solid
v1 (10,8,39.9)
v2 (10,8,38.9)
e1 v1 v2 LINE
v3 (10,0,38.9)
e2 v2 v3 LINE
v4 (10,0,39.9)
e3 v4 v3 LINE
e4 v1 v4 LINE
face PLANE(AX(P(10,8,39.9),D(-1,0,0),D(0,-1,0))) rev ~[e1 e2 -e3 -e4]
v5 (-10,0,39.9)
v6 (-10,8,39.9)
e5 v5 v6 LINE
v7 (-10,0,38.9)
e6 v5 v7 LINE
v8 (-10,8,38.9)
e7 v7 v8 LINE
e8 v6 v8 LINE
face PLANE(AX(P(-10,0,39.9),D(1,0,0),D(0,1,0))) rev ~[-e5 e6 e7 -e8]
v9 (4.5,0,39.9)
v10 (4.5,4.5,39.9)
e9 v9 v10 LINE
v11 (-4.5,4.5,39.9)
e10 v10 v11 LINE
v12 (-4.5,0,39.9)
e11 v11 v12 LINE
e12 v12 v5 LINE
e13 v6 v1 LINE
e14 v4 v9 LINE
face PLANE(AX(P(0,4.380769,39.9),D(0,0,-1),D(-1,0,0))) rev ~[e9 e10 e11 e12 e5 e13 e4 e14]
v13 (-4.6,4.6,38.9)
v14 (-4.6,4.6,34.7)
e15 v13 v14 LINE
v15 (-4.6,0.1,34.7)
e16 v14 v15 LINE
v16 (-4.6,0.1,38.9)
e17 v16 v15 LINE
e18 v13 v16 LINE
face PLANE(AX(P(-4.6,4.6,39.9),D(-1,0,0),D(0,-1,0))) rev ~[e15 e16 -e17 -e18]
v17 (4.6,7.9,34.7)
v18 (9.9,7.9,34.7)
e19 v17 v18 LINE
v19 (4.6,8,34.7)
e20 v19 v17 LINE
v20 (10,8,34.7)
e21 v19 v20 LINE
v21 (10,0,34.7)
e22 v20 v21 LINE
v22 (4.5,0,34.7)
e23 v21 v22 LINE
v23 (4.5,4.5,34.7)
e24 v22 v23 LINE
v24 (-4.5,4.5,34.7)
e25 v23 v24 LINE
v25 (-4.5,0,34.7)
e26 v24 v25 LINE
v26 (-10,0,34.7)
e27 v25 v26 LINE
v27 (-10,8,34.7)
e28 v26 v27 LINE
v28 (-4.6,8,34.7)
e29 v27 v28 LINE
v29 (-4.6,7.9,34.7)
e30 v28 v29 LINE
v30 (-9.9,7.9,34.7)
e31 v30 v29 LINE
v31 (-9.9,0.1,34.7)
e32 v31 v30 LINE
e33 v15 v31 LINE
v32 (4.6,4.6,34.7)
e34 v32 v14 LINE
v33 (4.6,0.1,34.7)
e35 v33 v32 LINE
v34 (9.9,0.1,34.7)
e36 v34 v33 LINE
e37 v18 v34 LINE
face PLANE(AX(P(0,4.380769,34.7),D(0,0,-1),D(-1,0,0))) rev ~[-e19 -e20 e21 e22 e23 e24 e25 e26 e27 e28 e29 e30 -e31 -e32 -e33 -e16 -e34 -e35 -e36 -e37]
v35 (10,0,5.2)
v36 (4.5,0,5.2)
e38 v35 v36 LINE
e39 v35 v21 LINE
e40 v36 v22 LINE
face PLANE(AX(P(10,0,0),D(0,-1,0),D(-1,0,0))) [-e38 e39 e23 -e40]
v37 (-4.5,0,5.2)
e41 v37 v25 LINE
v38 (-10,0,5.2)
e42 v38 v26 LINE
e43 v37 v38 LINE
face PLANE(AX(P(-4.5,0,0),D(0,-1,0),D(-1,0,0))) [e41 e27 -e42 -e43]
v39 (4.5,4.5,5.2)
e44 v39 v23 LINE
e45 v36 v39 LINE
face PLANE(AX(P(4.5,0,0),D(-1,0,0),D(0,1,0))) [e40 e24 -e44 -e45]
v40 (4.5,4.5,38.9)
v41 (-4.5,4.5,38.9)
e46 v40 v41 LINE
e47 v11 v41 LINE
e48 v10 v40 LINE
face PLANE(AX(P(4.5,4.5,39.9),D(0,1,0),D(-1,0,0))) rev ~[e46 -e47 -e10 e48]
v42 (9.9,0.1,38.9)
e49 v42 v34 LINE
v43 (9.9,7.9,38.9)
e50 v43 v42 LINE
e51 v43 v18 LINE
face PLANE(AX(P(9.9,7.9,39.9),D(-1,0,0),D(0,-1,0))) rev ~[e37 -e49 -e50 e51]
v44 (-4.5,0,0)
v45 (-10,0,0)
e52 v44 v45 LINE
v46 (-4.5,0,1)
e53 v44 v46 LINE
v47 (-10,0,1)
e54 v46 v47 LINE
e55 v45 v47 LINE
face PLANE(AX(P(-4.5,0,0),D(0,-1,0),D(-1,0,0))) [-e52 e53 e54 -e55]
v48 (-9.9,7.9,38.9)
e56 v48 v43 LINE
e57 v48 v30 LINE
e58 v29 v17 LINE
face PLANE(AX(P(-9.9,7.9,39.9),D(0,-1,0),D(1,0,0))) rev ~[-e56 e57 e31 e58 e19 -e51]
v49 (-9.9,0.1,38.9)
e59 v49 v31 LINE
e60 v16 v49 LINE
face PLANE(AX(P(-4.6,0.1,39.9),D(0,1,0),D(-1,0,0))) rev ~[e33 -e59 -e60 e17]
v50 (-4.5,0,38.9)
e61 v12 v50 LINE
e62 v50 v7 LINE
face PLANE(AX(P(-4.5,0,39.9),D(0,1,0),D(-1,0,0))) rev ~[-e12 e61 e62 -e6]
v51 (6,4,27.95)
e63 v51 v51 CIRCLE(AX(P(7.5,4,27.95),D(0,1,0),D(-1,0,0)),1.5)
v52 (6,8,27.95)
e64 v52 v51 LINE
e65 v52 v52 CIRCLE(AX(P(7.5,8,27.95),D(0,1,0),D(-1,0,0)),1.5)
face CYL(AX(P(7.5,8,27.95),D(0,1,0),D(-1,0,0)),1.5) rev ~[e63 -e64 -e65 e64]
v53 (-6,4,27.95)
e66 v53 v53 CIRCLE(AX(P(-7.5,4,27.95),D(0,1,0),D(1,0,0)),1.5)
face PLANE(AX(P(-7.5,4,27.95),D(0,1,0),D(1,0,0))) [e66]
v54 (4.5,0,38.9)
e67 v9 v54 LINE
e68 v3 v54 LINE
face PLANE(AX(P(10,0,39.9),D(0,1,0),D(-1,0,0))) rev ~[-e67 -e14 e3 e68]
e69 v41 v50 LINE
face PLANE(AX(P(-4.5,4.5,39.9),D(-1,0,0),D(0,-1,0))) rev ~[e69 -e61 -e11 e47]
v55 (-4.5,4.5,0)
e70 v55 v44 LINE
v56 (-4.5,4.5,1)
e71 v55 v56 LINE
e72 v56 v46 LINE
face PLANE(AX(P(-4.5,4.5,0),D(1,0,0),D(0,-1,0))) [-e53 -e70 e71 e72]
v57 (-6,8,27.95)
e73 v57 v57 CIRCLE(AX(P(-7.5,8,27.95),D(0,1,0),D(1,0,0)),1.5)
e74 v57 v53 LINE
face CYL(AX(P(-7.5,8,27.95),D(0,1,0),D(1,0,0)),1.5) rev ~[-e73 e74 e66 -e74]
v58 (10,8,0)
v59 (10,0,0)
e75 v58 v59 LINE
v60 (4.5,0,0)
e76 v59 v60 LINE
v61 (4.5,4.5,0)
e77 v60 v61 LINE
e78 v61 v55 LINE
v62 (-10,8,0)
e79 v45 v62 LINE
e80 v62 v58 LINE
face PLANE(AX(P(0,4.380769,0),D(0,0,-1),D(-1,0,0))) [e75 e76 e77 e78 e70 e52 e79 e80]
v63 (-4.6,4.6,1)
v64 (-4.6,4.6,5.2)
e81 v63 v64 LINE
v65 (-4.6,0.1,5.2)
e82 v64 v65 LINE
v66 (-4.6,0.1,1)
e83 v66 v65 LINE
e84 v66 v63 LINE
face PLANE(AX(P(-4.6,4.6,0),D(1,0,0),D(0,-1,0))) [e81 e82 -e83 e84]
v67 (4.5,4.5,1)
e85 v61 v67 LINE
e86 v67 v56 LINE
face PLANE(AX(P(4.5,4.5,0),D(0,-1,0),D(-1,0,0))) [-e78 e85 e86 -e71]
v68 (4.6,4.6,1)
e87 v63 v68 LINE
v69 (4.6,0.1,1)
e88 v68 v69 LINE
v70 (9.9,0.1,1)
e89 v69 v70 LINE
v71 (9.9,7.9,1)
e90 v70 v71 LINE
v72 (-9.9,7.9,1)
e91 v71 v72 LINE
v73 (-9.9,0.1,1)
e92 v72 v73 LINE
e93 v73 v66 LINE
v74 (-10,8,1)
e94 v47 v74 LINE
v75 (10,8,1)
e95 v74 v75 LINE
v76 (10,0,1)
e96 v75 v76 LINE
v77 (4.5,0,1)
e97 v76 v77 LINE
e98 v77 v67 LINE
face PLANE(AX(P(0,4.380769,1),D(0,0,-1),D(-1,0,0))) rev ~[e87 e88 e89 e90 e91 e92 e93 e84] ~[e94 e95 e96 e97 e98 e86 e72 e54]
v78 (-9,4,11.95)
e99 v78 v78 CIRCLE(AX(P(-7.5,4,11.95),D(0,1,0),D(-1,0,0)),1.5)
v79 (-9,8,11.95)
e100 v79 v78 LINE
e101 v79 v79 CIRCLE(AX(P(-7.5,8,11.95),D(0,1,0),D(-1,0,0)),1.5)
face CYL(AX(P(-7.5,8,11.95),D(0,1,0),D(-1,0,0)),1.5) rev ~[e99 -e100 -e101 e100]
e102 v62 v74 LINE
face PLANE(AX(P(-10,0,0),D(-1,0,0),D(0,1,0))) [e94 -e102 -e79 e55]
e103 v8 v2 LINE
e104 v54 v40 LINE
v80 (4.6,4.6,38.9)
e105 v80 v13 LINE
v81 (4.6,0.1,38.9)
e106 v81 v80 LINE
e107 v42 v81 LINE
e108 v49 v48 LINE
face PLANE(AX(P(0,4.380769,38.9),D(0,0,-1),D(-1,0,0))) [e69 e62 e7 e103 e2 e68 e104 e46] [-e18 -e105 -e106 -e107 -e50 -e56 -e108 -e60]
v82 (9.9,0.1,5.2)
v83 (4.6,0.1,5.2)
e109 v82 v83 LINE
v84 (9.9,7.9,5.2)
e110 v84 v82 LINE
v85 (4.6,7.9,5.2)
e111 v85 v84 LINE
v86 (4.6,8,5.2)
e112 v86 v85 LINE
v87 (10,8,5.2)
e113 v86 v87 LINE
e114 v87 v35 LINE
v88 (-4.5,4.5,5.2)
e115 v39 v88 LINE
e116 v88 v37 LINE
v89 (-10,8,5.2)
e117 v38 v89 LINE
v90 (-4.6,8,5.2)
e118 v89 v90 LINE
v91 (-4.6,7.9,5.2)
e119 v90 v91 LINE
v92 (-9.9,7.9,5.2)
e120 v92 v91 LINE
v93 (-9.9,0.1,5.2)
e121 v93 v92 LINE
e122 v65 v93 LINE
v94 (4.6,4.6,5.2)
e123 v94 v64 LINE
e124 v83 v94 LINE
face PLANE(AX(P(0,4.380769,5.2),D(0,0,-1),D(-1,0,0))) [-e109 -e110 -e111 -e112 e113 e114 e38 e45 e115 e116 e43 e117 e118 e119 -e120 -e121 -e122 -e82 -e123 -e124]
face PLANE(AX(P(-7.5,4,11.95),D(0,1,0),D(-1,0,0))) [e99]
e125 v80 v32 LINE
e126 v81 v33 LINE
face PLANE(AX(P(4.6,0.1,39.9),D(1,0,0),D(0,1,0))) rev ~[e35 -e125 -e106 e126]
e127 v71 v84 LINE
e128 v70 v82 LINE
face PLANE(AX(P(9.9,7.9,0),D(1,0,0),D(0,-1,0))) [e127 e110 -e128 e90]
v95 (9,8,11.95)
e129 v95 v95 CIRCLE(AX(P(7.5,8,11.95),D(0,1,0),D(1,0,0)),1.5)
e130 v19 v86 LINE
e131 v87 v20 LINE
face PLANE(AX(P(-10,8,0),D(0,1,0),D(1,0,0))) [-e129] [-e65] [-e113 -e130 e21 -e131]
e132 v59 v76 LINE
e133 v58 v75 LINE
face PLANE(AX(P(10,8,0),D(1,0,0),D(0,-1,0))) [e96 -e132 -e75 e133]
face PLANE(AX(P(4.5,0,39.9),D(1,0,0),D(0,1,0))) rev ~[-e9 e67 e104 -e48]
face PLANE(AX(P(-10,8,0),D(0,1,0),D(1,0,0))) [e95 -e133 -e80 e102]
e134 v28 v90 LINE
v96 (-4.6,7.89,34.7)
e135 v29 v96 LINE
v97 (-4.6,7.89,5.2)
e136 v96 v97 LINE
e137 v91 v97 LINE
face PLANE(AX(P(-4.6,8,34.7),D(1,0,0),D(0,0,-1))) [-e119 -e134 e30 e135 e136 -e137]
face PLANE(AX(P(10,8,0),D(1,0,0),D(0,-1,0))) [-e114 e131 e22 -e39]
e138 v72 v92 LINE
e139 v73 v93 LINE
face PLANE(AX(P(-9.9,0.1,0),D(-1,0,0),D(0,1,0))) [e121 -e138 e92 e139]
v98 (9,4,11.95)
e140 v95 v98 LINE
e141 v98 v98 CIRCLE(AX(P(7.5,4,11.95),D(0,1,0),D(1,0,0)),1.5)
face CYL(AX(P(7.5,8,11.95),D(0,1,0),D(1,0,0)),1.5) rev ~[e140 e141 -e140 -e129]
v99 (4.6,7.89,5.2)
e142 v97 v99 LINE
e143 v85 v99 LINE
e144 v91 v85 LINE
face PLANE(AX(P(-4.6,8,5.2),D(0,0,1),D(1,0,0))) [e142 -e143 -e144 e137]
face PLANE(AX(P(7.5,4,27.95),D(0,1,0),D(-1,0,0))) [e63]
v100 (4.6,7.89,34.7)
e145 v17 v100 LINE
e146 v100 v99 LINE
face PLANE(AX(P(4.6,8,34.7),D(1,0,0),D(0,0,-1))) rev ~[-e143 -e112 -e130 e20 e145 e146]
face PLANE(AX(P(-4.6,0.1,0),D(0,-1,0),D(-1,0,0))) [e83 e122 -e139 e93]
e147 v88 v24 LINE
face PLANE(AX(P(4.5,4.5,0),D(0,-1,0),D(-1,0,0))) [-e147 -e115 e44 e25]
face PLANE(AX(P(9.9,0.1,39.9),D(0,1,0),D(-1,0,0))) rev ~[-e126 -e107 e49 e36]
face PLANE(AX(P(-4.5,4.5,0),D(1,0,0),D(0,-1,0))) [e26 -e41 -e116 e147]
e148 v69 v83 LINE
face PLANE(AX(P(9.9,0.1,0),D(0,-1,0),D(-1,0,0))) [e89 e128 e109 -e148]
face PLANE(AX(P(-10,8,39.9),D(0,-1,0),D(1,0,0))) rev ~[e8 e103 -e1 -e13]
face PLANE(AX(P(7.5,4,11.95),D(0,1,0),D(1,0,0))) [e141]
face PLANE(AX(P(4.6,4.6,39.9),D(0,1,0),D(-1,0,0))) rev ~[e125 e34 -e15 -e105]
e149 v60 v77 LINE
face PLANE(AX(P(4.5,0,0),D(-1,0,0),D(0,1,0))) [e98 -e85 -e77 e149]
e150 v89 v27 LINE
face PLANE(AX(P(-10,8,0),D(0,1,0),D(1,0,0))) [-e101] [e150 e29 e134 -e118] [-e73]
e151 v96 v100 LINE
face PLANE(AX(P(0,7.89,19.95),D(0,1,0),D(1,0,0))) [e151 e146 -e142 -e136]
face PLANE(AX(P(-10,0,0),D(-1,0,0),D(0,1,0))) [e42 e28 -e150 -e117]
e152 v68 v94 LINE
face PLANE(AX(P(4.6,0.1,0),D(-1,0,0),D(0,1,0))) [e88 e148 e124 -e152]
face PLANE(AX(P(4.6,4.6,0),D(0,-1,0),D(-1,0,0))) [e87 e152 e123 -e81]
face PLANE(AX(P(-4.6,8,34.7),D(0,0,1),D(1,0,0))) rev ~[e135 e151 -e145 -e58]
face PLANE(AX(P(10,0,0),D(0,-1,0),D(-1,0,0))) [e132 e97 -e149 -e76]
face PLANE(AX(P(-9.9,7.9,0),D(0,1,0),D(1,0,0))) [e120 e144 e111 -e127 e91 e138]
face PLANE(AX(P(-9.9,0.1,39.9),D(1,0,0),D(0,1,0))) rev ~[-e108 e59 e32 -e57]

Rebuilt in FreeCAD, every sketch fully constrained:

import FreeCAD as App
import Part
import Sketcher

V = App.Vector


def add_polygon(sketch, points):
    """Adds a closed chain of lines whose ends are joined by coincident constraints."""
    first, n = sketch.GeometryCount, len(points)
    for a, b in zip(points, points[1:] + points[:1]):
        sketch.addGeometry(Part.LineSegment(App.Vector(*a, 0), App.Vector(*b, 0)), False)
    for i in range(n):
        sketch.addConstraint(Sketcher.Constraint("Coincident", first + i, 2, first + (i + 1) % n, 1))

doc = App.newDocument("Part")
body = doc.addObject("PartDesign::Body", "Body")

sketch1 = body.newObject("Sketcher::SketchObject", "Sketch")
sketch1.AttachmentSupport = (doc.getObject("XY_Plane"), [""])
sketch1.MapMode = "FlatFace"
add_polygon(sketch1, [(-4.5, 4.5), (4.5, 4.5), (4.5, 0), (10, 0), (10, 8), (-10, 8), (-10, 0), (-4.5, 0)])
sketch1.addConstraint([
    Sketcher.Constraint("Horizontal", 0),
    Sketcher.Constraint("Vertical", 1),
    Sketcher.Constraint("Horizontal", 2),
    Sketcher.Constraint("Vertical", 3),
    Sketcher.Constraint("Horizontal", 4),
    Sketcher.Constraint("Vertical", 5),
    Sketcher.Constraint("Horizontal", 6),
    Sketcher.Constraint("Vertical", 7),
    Sketcher.Constraint("Symmetric", 2, 2, 5, 2, -1, 1),
    Sketcher.Constraint("Symmetric", 1, 2, 6, 2, -2),
    Sketcher.Constraint("DistanceX", 0, 1, 0, 2, 9.0),
    Sketcher.Constraint("DistanceX", 4, 2, 4, 1, 20.0),
    Sketcher.Constraint("DistanceY", 3, 1, 3, 2, 8.0),
    Sketcher.Constraint("DistanceY", 1, 2, 1, 1, 4.5),
])
pad1 = body.newObject("PartDesign::Pad", "Pad")
pad1.Profile = sketch1
pad1.Length = 39.9

sketch2 = body.newObject("Sketcher::SketchObject", "Sketch001")
sketch2.AttachmentSupport = (doc.getObject("XZ_Plane"), [""])
sketch2.MapMode = "FlatFace"
sketch2.AttachmentOffset = App.Placement(V(0, 0, -8), App.Rotation())
sketch2.addGeometry([
    Part.Circle(V(-7.5, 11.9, 0), V(0, 0, 1), 1.5),
    Part.Circle(V(7.5, 11.9, 0), V(0, 0, 1), 1.5),
    Part.Circle(V(7.5, 27.9, 0), V(0, 0, 1), 1.5),
    Part.Circle(V(-7.5, 27.9, 0), V(0, 0, 1), 1.5),
], False)
sketch2.addConstraint([
    Sketcher.Constraint("Equal", 0, 1),
    Sketcher.Constraint("Equal", 1, 2),
    Sketcher.Constraint("Equal", 2, 3),
    Sketcher.Constraint("Symmetric", 0, 3, 1, 3, -2),
    Sketcher.Constraint("Symmetric", 2, 3, 3, 3, -2),
    Sketcher.Constraint("Vertical", 1, 3, 2, 3),
    Sketcher.Constraint("Diameter", 0, 3.0),
    Sketcher.Constraint("DistanceX", 0, 3, 1, 3, 15.0),
    Sketcher.Constraint("DistanceY", 1, 3, 2, 3, 16.0),
    Sketcher.Constraint("DistanceY", -1, 1, 0, 3, 11.95),
])
pocket1 = body.newObject("PartDesign::Pocket", "Pocket")
pocket1.Profile = sketch2
pocket1.Length = 4
pocket1.Reversed = True

sketch3 = body.newObject("Sketcher::SketchObject", "Sketch002")
sketch3.AttachmentSupport = (doc.getObject("XY_Plane"), [""])
sketch3.MapMode = "FlatFace"
add_polygon(sketch3, [(-4.5, 0), (-10, 0), (-10, 8), (10, 8), (10, 0), (4.5, 0), (4.5, 4.5), (-4.5, 4.5)])
add_polygon(sketch3, [(-9.9, 0.1), (-4.6, 0.1), (-4.6, 4.6), (4.6, 4.6), (4.6, 0.1), (9.9, 0.1), (9.9, 7.9), (-9.9, 7.9)])
sketch3.addConstraint([
    Sketcher.Constraint("Horizontal", 0),
    Sketcher.Constraint("Vertical", 1),
    Sketcher.Constraint("Horizontal", 2),
    Sketcher.Constraint("Vertical", 3),
    Sketcher.Constraint("Horizontal", 4),
    Sketcher.Constraint("Vertical", 5),
    Sketcher.Constraint("Horizontal", 6),
    Sketcher.Constraint("Vertical", 7),
    Sketcher.Constraint("Horizontal", 8),
    Sketcher.Constraint("Vertical", 9),
    Sketcher.Constraint("Horizontal", 10),
    Sketcher.Constraint("Vertical", 11),
    Sketcher.Constraint("Horizontal", 12),
    Sketcher.Constraint("Vertical", 13),
    Sketcher.Constraint("Horizontal", 14),
    Sketcher.Constraint("Vertical", 15),
    Sketcher.Constraint("Symmetric", 0, 2, 3, 2, -1, 1),
    Sketcher.Constraint("Symmetric", 4, 2, 7, 2, -2),
    Sketcher.Constraint("Symmetric", 8, 2, 11, 2, -2),
    Sketcher.Constraint("Equal", 8, 12),
    Sketcher.Constraint("Equal", 7, 9),
    Sketcher.Constraint("DistanceX", 2, 1, 2, 2, 20.0),
    Sketcher.Constraint("DistanceX", 6, 2, 6, 1, 9.0),
    Sketcher.Constraint("DistanceY", 1, 1, 1, 2, 8.0),
    Sketcher.Constraint("DistanceX", 8, 1, 8, 2, 5.3),
    Sketcher.Constraint("DistanceX", 10, 1, 10, 2, 9.2),
    Sketcher.Constraint("DistanceY", 5, 1, 5, 2, 4.5),
    Sketcher.Constraint("DistanceY", 13, 1, 13, 2, 7.8),
    Sketcher.Constraint("DistanceY", -1, 1, 8, 2, 0.1),
])
pocket2 = body.newObject("PartDesign::Pocket", "Pocket001")
pocket2.Profile = sketch3
pocket2.Length = 5.2
pocket2.Reversed = True

sketch4 = body.newObject("Sketcher::SketchObject", "Sketch003")
sketch4.AttachmentSupport = (doc.getObject("XY_Plane"), [""])
sketch4.MapMode = "FlatFace"
sketch4.AttachmentOffset = App.Placement(V(0, 0, 39.9), App.Rotation())
add_polygon(sketch4, [(-10, 0), (-10, 8), (10, 8), (10, 0), (4.5, 0), (4.5, 4.5), (-4.5, 4.5), (-4.5, 0)])
add_polygon(sketch4, [(-9.9, 7.9), (-9.9, 0.1), (-4.6, 0.1), (-4.6, 4.6), (4.6, 4.6), (4.6, 0.1), (9.9, 0.1), (9.9, 7.9)])
sketch4.addConstraint([
    Sketcher.Constraint("Vertical", 0),
    Sketcher.Constraint("Horizontal", 1),
    Sketcher.Constraint("Vertical", 2),
    Sketcher.Constraint("Horizontal", 3),
    Sketcher.Constraint("Vertical", 4),
    Sketcher.Constraint("Horizontal", 5),
    Sketcher.Constraint("Vertical", 6),
    Sketcher.Constraint("Horizontal", 7),
    Sketcher.Constraint("Vertical", 8),
    Sketcher.Constraint("Horizontal", 9),
    Sketcher.Constraint("Vertical", 10),
    Sketcher.Constraint("Horizontal", 11),
    Sketcher.Constraint("Vertical", 12),
    Sketcher.Constraint("Horizontal", 13),
    Sketcher.Constraint("Vertical", 14),
    Sketcher.Constraint("Horizontal", 15),
    Sketcher.Constraint("Symmetric", 3, 2, 6, 2, -1, 1),
    Sketcher.Constraint("Symmetric", 2, 2, 7, 2, -2),
    Sketcher.Constraint("Symmetric", 9, 2, 12, 2, -2),
    Sketcher.Constraint("Equal", 9, 13),
    Sketcher.Constraint("Equal", 6, 10),
    Sketcher.Constraint("DistanceX", 1, 1, 1, 2, 20.0),
    Sketcher.Constraint("DistanceX", 5, 2, 5, 1, 9.0),
    Sketcher.Constraint("DistanceY", 0, 1, 0, 2, 8.0),
    Sketcher.Constraint("DistanceX", 9, 1, 9, 2, 5.3),
    Sketcher.Constraint("DistanceX", 11, 1, 11, 2, 9.2),
    Sketcher.Constraint("DistanceY", 4, 1, 4, 2, 4.5),
    Sketcher.Constraint("DistanceY", 8, 2, 8, 1, 7.8),
    Sketcher.Constraint("DistanceY", -1, 1, 8, 2, 0.1),
])
pocket3 = body.newObject("PartDesign::Pocket", "Pocket002")
pocket3.Profile = sketch4
pocket3.Length = 5.2

sketch5 = body.newObject("Sketcher::SketchObject", "Sketch004")
sketch5.AttachmentSupport = (doc.getObject("XY_Plane"), [""])
sketch5.MapMode = "FlatFace"
add_polygon(sketch5, [(-4.5, 4.5), (-4.5, 0), (-10, 0), (-10, 8), (10, 8), (10, 0), (4.5, 0), (4.5, 4.5)])
sketch5.addConstraint([
    Sketcher.Constraint("Vertical", 0),
    Sketcher.Constraint("Horizontal", 1),
    Sketcher.Constraint("Vertical", 2),
    Sketcher.Constraint("Horizontal", 3),
    Sketcher.Constraint("Vertical", 4),
    Sketcher.Constraint("Horizontal", 5),
    Sketcher.Constraint("Vertical", 6),
    Sketcher.Constraint("Horizontal", 7),
    Sketcher.Constraint("Symmetric", 1, 2, 4, 2, -1, 1),
    Sketcher.Constraint("Symmetric", 0, 2, 5, 2, -2),
    Sketcher.Constraint("DistanceX", 3, 1, 3, 2, 20.0),
    Sketcher.Constraint("DistanceX", 7, 2, 7, 1, 9.0),
    Sketcher.Constraint("DistanceY", 2, 1, 2, 2, 8.0),
    Sketcher.Constraint("DistanceY", 0, 2, 0, 1, 4.5),
])
pad2 = body.newObject("PartDesign::Pad", "Pad001")
pad2.Profile = sketch5
pad2.Length = 1

sketch6 = body.newObject("Sketcher::SketchObject", "Sketch005")
sketch6.AttachmentSupport = (doc.getObject("XY_Plane"), [""])
sketch6.MapMode = "FlatFace"
sketch6.AttachmentOffset = App.Placement(V(0, 0, 39.9), App.Rotation())
add_polygon(sketch6, [(-4.5, 4.5), (-4.5, 0), (-10, 0), (-10, 8), (10, 8), (10, 0), (4.5, 0), (4.5, 4.5)])
sketch6.addConstraint([
    Sketcher.Constraint("Vertical", 0),
    Sketcher.Constraint("Horizontal", 1),
    Sketcher.Constraint("Vertical", 2),
    Sketcher.Constraint("Horizontal", 3),
    Sketcher.Constraint("Vertical", 4),
    Sketcher.Constraint("Horizontal", 5),
    Sketcher.Constraint("Vertical", 6),
    Sketcher.Constraint("Horizontal", 7),
    Sketcher.Constraint("Symmetric", 1, 2, 4, 2, -1, 1),
    Sketcher.Constraint("Symmetric", 0, 2, 5, 2, -2),
    Sketcher.Constraint("DistanceX", 3, 1, 3, 2, 20.0),
    Sketcher.Constraint("DistanceX", 7, 2, 7, 1, 9.0),
    Sketcher.Constraint("DistanceY", 2, 1, 2, 2, 8.0),
    Sketcher.Constraint("DistanceY", 0, 2, 0, 1, 4.5),
])
pad3 = body.newObject("PartDesign::Pad", "Pad002")
pad3.Profile = sketch6
pad3.Length = 1
pad3.Reversed = True

sketch7 = body.newObject("Sketcher::SketchObject", "Sketch006")
sketch7.AttachmentSupport = (doc.getObject("XZ_Plane"), [""])
sketch7.MapMode = "FlatFace"
sketch7.AttachmentOffset = App.Placement(V(0, 0, -8), App.Rotation())
add_polygon(sketch7, [(-5, 5), (-5, 35), (5, 35), (5, 5)])
sketch7.addConstraint([
    Sketcher.Constraint("Vertical", 0),
    Sketcher.Constraint("Horizontal", 1),
    Sketcher.Constraint("Vertical", 2),
    Sketcher.Constraint("Horizontal", 3),
    Sketcher.Constraint("DistanceX", 1, 1, 1, 2, 9.2),
    Sketcher.Constraint("DistanceY", 0, 1, 0, 2, 29.5),
    Sketcher.Constraint("DistanceX", 0, 2, -1, 1, 4.6),
    Sketcher.Constraint("DistanceY", -1, 1, 0, 2, 34.7),
])
pocket4 = body.newObject("PartDesign::Pocket", "Pocket003")
pocket4.Profile = sketch7
pocket4.Length = 0.11
pocket4.Reversed = True

doc.recompute()
